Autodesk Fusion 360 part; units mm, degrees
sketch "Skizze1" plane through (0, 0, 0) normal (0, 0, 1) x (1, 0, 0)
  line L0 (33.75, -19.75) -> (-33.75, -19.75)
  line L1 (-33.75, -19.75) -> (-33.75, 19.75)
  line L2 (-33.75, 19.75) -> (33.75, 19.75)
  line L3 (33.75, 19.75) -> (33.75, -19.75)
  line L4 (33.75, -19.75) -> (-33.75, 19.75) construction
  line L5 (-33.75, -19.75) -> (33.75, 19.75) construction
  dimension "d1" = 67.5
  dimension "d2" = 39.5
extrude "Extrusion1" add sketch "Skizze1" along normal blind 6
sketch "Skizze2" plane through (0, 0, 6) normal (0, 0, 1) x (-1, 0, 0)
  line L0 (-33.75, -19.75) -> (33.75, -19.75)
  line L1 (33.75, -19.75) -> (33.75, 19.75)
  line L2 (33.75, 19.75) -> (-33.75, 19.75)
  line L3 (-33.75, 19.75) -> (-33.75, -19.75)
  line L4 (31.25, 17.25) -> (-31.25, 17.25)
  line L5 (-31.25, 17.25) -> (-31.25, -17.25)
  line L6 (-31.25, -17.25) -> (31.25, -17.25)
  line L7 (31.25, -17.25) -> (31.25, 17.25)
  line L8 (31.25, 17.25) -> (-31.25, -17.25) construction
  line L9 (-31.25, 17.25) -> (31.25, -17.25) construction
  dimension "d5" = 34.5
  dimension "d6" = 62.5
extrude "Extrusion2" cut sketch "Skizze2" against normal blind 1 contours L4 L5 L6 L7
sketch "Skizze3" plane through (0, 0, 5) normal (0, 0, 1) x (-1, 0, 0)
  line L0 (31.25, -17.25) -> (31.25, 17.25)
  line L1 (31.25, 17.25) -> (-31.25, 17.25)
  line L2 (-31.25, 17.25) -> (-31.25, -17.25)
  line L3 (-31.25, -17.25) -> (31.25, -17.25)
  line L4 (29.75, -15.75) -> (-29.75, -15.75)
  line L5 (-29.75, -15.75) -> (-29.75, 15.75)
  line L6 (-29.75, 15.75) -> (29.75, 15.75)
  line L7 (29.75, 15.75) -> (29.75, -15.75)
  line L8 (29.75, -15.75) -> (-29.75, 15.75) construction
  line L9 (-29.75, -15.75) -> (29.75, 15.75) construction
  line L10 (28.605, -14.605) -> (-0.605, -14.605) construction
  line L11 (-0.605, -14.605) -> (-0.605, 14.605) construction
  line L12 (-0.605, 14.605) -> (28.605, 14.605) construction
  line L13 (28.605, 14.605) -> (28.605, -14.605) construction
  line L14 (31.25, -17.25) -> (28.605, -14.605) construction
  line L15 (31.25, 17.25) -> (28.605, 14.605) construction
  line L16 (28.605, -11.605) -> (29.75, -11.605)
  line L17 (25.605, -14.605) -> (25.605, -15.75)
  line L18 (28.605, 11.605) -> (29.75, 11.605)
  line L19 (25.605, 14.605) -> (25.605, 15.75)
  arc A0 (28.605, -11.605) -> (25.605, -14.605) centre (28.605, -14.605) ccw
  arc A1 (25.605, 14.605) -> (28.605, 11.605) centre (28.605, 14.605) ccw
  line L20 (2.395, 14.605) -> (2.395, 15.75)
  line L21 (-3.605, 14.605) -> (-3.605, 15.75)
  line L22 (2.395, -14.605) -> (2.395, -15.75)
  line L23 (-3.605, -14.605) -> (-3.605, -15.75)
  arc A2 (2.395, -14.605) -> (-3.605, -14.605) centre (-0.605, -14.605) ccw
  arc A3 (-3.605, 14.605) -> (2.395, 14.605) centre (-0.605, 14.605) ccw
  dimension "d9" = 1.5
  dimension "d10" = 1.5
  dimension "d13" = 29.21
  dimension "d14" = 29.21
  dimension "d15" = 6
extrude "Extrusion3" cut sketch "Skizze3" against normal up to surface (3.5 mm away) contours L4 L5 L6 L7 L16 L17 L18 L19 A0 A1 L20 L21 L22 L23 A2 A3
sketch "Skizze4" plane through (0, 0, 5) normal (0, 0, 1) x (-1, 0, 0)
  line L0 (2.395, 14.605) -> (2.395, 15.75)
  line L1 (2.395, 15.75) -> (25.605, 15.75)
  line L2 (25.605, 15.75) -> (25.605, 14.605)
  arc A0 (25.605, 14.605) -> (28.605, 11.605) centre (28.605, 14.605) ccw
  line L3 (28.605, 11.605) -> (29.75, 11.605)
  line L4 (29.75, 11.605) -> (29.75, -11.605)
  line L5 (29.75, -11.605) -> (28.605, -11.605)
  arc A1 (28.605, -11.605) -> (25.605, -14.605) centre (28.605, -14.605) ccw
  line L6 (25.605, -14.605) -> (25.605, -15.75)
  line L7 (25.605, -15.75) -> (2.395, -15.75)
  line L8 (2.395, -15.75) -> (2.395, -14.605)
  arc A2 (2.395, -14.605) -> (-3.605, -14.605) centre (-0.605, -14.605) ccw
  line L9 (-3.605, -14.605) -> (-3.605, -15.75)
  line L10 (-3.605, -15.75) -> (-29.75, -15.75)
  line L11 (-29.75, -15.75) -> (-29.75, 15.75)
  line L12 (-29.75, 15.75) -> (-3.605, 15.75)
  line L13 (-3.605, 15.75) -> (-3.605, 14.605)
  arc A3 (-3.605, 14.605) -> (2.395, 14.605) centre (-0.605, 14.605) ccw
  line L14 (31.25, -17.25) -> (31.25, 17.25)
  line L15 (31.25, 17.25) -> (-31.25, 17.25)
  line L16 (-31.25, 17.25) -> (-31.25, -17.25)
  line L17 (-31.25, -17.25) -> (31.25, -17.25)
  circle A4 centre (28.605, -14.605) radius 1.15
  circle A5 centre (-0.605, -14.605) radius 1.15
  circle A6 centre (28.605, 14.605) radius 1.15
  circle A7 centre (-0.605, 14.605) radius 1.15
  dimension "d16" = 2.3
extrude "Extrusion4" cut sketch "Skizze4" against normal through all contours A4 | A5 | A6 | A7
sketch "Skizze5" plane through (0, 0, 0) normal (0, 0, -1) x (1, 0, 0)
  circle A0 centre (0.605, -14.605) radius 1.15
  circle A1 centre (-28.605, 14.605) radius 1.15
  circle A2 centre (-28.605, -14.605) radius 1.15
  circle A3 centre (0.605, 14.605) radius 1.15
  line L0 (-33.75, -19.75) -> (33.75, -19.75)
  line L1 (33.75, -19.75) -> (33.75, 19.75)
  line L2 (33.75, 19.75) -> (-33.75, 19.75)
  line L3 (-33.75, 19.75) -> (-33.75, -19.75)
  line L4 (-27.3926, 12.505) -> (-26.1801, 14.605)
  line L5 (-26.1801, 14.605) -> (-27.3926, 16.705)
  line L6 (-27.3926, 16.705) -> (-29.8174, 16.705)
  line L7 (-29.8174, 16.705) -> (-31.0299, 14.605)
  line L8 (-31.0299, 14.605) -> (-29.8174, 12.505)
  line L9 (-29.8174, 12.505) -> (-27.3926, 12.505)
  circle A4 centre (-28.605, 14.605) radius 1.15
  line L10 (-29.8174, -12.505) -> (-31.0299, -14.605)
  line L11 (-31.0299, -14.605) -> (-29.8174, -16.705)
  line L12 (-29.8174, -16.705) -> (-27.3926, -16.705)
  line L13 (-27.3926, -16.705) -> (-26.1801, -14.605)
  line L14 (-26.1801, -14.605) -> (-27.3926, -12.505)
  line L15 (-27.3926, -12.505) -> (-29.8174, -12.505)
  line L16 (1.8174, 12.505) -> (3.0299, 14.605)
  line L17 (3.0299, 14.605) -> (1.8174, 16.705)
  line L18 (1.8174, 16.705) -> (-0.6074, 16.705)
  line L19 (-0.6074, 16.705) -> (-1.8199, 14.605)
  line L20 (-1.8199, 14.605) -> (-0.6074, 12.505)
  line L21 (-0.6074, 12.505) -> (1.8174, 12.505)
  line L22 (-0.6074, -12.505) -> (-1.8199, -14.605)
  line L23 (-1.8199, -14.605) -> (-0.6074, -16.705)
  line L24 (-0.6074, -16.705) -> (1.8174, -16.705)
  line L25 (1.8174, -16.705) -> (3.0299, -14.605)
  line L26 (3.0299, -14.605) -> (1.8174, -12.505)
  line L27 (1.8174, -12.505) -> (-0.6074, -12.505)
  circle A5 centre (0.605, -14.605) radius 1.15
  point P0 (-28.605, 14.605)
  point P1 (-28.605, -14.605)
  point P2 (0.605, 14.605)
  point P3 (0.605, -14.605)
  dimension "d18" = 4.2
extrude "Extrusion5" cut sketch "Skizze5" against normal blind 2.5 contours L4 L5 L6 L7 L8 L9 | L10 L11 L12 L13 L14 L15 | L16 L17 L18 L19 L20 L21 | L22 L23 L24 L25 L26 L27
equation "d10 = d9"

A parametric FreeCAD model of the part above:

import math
import FreeCAD as App
import Part
import Sketcher
Q = App.Units.Quantity


def add_polygon(sketch, points):
    """Adds a closed chain of lines whose ends are joined by coincident constraints."""
    first, n = sketch.GeometryCount, len(points)
    for a, b in zip(points, points[1:] + points[:1]):
        sketch.addGeometry(Part.LineSegment(App.Vector(*a, 0), App.Vector(*b, 0)), False)
    for i in range(n):
        sketch.addConstraint(Sketcher.Constraint("Coincident", first + i, 2, first + (i + 1) % n, 1))

doc = App.newDocument("Part")
body = doc.addObject("PartDesign::Body", "Body")

sketch1 = body.newObject("Sketcher::SketchObject", "Sketch")
sketch1.AttachmentSupport = (doc.getObject("XY_Plane"), [""])
sketch1.MapMode = "FlatFace"
add_polygon(sketch1, [(-33.75, -19.75), (33.75, -19.75), (33.75, 19.75), (-33.75, 19.75)])
sketch1.addConstraint([
    Sketcher.Constraint("Horizontal", 0),
    Sketcher.Constraint("Vertical", 1),
    Sketcher.Constraint("Horizontal", 2),
    Sketcher.Constraint("Vertical", 3),
    Sketcher.Constraint("Symmetric", 0, 2, 2, 2, -1, 1),
    Sketcher.Constraint("DistanceX", 0, 1, 0, 2, Q("67.5 mm")),
    Sketcher.Constraint("DistanceY", 1, 1, 1, 2, Q("39.5 mm")),
])
pad1 = body.newObject("PartDesign::Pad", "Pad")
pad1.Profile = sketch1
pad1.Length = 6

sketch2 = body.newObject("Sketcher::SketchObject", "Sketch001")
sketch2.AttachmentSupport = (doc.getObject("XY_Plane"), [""])
sketch2.MapMode = "FlatFace"
sketch2.AttachmentOffset = App.Placement(App.Vector(0, 0, 6), App.Rotation())
add_polygon(sketch2, [(-31.25, 17.25), (-31.25, -17.25), (31.25, -17.25), (31.25, 17.25)])
sketch2.addConstraint([
    Sketcher.Constraint("Vertical", 0),
    Sketcher.Constraint("Horizontal", 1),
    Sketcher.Constraint("Vertical", 2),
    Sketcher.Constraint("Horizontal", 3),
    Sketcher.Constraint("Symmetric", 0, 2, 2, 2, -1, 1),
    Sketcher.Constraint("DistanceX", 1, 1, 1, 2, Q("62.5 mm")),
    Sketcher.Constraint("DistanceY", 0, 2, 0, 1, Q("34.5 mm")),
])
pocket1 = body.newObject("PartDesign::Pocket", "Pocket")
pocket1.Profile = sketch2
pocket1.Length = 1

sketch3 = body.newObject("Sketcher::SketchObject", "Sketch002")
sketch3.AttachmentSupport = (doc.getObject("XY_Plane"), [""])
sketch3.MapMode = "FlatFace"
sketch3.AttachmentOffset = App.Placement(App.Vector(0, 0, 5), App.Rotation())
sketch3.addGeometry([
    Part.LineSegment(App.Vector(-2.395, 15.75, 0), App.Vector(-25.605, 15.75, 0)),
    Part.LineSegment(App.Vector(-25.605, 15.75, 0), App.Vector(-25.605, 14.605, 0)),
    Part.ArcOfCircle(Part.Circle(App.Vector(-28.605, 14.605, 0), App.Vector(0, 0, 1), 3), math.radians(-90), math.radians(0)),
    Part.LineSegment(App.Vector(-28.605, 11.605, 0), App.Vector(-29.75, 11.605, 0)),
    Part.LineSegment(App.Vector(-29.75, 11.605, 0), App.Vector(-29.75, -11.605, 0)),
    Part.LineSegment(App.Vector(-29.75, -11.605, 0), App.Vector(-28.605, -11.605, 0)),
    Part.ArcOfCircle(Part.Circle(App.Vector(-28.605, -14.605, 0), App.Vector(0, 0, 1), 3), math.radians(0), math.radians(90)),
    Part.LineSegment(App.Vector(-25.605, -14.605, 0), App.Vector(-25.605, -15.75, 0)),
    Part.LineSegment(App.Vector(-25.605, -15.75, 0), App.Vector(-2.395, -15.75, 0)),
    Part.LineSegment(App.Vector(-2.395, -15.75, 0), App.Vector(-2.395, -14.605, 0)),
    Part.ArcOfCircle(Part.Circle(App.Vector(0.605, -14.605, 0), App.Vector(0, 0, 1), 3), math.radians(0), math.radians(180)),
    Part.LineSegment(App.Vector(3.605, -14.605, 0), App.Vector(3.605, -15.75, 0)),
    Part.LineSegment(App.Vector(3.605, -15.75, 0), App.Vector(29.75, -15.75, 0)),
    Part.LineSegment(App.Vector(29.75, -15.75, 0), App.Vector(29.75, 15.75, 0)),
    Part.LineSegment(App.Vector(29.75, 15.75, 0), App.Vector(3.605, 15.75, 0)),
    Part.LineSegment(App.Vector(3.605, 15.75, 0), App.Vector(3.605, 14.605, 0)),
    Part.ArcOfCircle(Part.Circle(App.Vector(0.605, 14.605, 0), App.Vector(0, 0, 1), 3), math.radians(180), math.radians(360)),
    Part.LineSegment(App.Vector(-2.395, 14.605, 0), App.Vector(-2.395, 15.75, 0)),
], False)
sketch3.addConstraint([
    Sketcher.Constraint("Coincident", 0, 2, 1, 1),
    Sketcher.Constraint("Tangent", 1, 2, 2, 2),
    Sketcher.Constraint("Tangent", 2, 1, 3, 1),
    Sketcher.Constraint("Coincident", 3, 2, 4, 1),
    Sketcher.Constraint("Coincident", 4, 2, 5, 1),
    Sketcher.Constraint("Tangent", 5, 2, 6, 2),
    Sketcher.Constraint("Tangent", 6, 1, 7, 1),
    Sketcher.Constraint("Coincident", 7, 2, 8, 1),
    Sketcher.Constraint("Coincident", 8, 2, 9, 1),
    Sketcher.Constraint("Tangent", 9, 2, 10, 2),
    Sketcher.Constraint("Tangent", 10, 1, 11, 1),
    Sketcher.Constraint("Coincident", 11, 2, 12, 1),
    Sketcher.Constraint("Coincident", 12, 2, 13, 1),
    Sketcher.Constraint("Coincident", 13, 2, 14, 1),
    Sketcher.Constraint("Coincident", 14, 2, 15, 1),
    Sketcher.Constraint("Tangent", 15, 2, 16, 2),
    Sketcher.Constraint("Tangent", 16, 1, 17, 1),
    Sketcher.Constraint("Coincident", 17, 2, 0, 1),
    Sketcher.Constraint("Horizontal", 0),
    Sketcher.Constraint("Vertical", 1),
    Sketcher.Constraint("Horizontal", 3),
    Sketcher.Constraint("Vertical", 4),
    Sketcher.Constraint("Horizontal", 5),
    Sketcher.Constraint("Vertical", 7),
    Sketcher.Constraint("Horizontal", 8),
    Sketcher.Constraint("Vertical", 9),
    Sketcher.Constraint("Vertical", 11),
    Sketcher.Constraint("Horizontal", 12),
    Sketcher.Constraint("Vertical", 13),
    Sketcher.Constraint("Horizontal", 14),
    Sketcher.Constraint("Vertical", 15),
    Sketcher.Constraint("Vertical", 17),
    Sketcher.Constraint("Equal", 2, 6),
    Sketcher.Constraint("Equal", 6, 10),
    Sketcher.Constraint("Equal", 10, 16),
    Sketcher.Constraint("Symmetric", 2, 3, 6, 3, -1),
    Sketcher.Constraint("Symmetric", 10, 3, 16, 3, -1),
    Sketcher.Constraint("Horizontal", 6, 3, 10, 3),
    Sketcher.Constraint("Horizontal", 8, 2, 11, 2),
    Sketcher.Constraint("Horizontal", 0, 2, 13, 2),
    Sketcher.Constraint("Equal", 5, 1),
    Sketcher.Constraint("Equal", 8, 4),
    Sketcher.Constraint("Equal", 1, 7),
    Sketcher.Constraint("Radius", 2, Q("3 mm")),
    Sketcher.Constraint("DistanceY", 6, 3, 2, 3, Q("29.21 mm")),
    Sketcher.Constraint("DistanceY", 13, 1, 13, 2, Q("31.5 mm")),
    Sketcher.Constraint("DistanceX", 12, 1, 12, 2, Q("26.145 mm")),
    Sketcher.Constraint("DistanceX", 3, 2, -1, 1, Q("29.75 mm")),
])
pocket2 = body.newObject("PartDesign::Pocket", "Pocket001")
pocket2.Profile = sketch3
pocket2.Length = 3.5

sketch4 = body.newObject("Sketcher::SketchObject", "Sketch003")
sketch4.AttachmentSupport = (doc.getObject("XY_Plane"), [""])
sketch4.MapMode = "FlatFace"
sketch4.AttachmentOffset = App.Placement(App.Vector(0, 0, 5), App.Rotation())
sketch4.addGeometry([
    Part.Circle(App.Vector(-28.605, 14.605, 0), App.Vector(0, 0, 1), 1.15),
    Part.Circle(App.Vector(0.605, 14.605, 0), App.Vector(0, 0, 1), 1.15),
    Part.Circle(App.Vector(-28.605, -14.605, 0), App.Vector(0, 0, 1), 1.15),
    Part.Circle(App.Vector(0.605, -14.605, 0), App.Vector(0, 0, 1), 1.15),
], False)
sketch4.addConstraint([
    Sketcher.Constraint("Equal", 0, 1),
    Sketcher.Constraint("Equal", 1, 2),
    Sketcher.Constraint("Equal", 2, 3),
    Sketcher.Constraint("Symmetric", 0, 3, 2, 3, -1),
    Sketcher.Constraint("Symmetric", 1, 3, 3, 3, -1),
    Sketcher.Constraint("Horizontal", 0, 3, 1, 3),
    Sketcher.Constraint("Diameter", 0, Q("2.3 mm")),
    Sketcher.Constraint("DistanceX", 0, 3, 1, 3, Q("29.21 mm")),
    Sketcher.Constraint("DistanceY", 2, 3, 0, 3, Q("29.21 mm")),
    Sketcher.Constraint("DistanceX", 0, 3, -1, 1, Q("28.605 mm")),
])
pocket3 = body.newObject("PartDesign::Pocket", "Pocket002")
pocket3.Profile = sketch4
pocket3.Type = "ThroughAll"

sketch5 = body.newObject("Sketcher::SketchObject", "Sketch004")
sketch5.AttachmentSupport = (doc.getObject("XY_Plane"), [""])
sketch5.MapMode = "FlatFace"
add_polygon(sketch5, [(-29.8174, -12.505), (-27.3926, -12.505), (-26.1801, -14.605), (-27.3926, -16.705), (-29.8174, -16.705), (-31.0299, -14.605)])
sketch5.addGeometry(Part.Circle(App.Vector(-28.605, -14.605, 0), App.Vector(0, 0, 1), 1.15), False)
add_polygon(sketch5, [(-27.3926, 12.505), (-29.8174, 12.505), (-31.0299, 14.605), (-29.8174, 16.705), (-27.3926, 16.705), (-26.1801, 14.605)])
sketch5.addGeometry(Part.Circle(App.Vector(-28.605, 14.605, 0), App.Vector(0, 0, 1), 1.15), False)
add_polygon(sketch5, [(-0.6074, -12.505), (1.8174, -12.505), (3.0299, -14.605), (1.8174, -16.705), (-0.6074, -16.705), (-1.8199, -14.605)])
sketch5.addGeometry(Part.Circle(App.Vector(0.605, -14.605, 0), App.Vector(0, 0, 1), 1.15), False)
add_polygon(sketch5, [(1.8174, 12.505), (-0.6074, 12.505), (-1.8199, 14.605), (-0.6074, 16.705), (1.8174, 16.705), (3.0299, 14.605)])
sketch5.addGeometry(Part.Circle(App.Vector(0.605, 14.605, 0), App.Vector(0, 0, 1), 1.15), False)
sketch5.addConstraint([
    Sketcher.Constraint("Horizontal", 0),
    Sketcher.Constraint("Horizontal", 3),
    Sketcher.Constraint("Horizontal", 7),
    Sketcher.Constraint("Horizontal", 10),
    Sketcher.Constraint("Horizontal", 14),
    Sketcher.Constraint("Horizontal", 17),
    Sketcher.Constraint("Horizontal", 21),
    Sketcher.Constraint("Horizontal", 24),
    Sketcher.Constraint("Equal", 6, 13),
    Sketcher.Constraint("Equal", 13, 20),
    Sketcher.Constraint("Equal", 20, 27),
    Sketcher.Constraint("Symmetric", 6, 3, 13, 3, -1),
    Sketcher.Constraint("Symmetric", 20, 3, 27, 3, -1),
    Sketcher.Constraint("Symmetric", 5, 2, 7, 2, -1),
    Sketcher.Constraint("Symmetric", 4, 2, 8, 2, -1),
    Sketcher.Constraint("Symmetric", 3, 2, 9, 2, -1),
    Sketcher.Constraint("Symmetric", 1, 2, 11, 2, -1),
    Sketcher.Constraint("Symmetric", 19, 2, 21, 2, -1),
    Sketcher.Constraint("Symmetric", 18, 2, 22, 2, -1),
    Sketcher.Constraint("Symmetric", 17, 2, 23, 2, -1),
    Sketcher.Constraint("Symmetric", 15, 2, 25, 2, -1),
    Sketcher.Constraint("Parallel", 1, 4),
    Sketcher.Constraint("Parallel", 2, 5),
    Sketcher.Constraint("Parallel", 4, 8),
    Sketcher.Constraint("Parallel", 8, 11),
    Sketcher.Constraint("Parallel", 9, 12),
    Sketcher.Constraint("Parallel", 11, 15),
    Sketcher.Constraint("Parallel", 12, 16),
    Sketcher.Constraint("Parallel", 15, 18),
    Sketcher.Constraint("Parallel", 16, 19),
    Sketcher.Constraint("Parallel", 22, 25),
    Sketcher.Constraint("Parallel", 23, 26),
    Sketcher.Constraint("Horizontal", 6, 3, 20, 3),
    Sketcher.Constraint("Horizontal", 20, 3, 1, 2),
    Sketcher.Constraint("Horizontal", 1, 2, 4, 2),
    Sketcher.Constraint("Horizontal", 5, 2, 14, 2),
    Sketcher.Constraint("Horizontal", 4, 2, 15, 2),
    Sketcher.Constraint("Horizontal", 3, 2, 16, 2),
    Sketcher.Constraint("Horizontal", 15, 2, 18, 2),
    Sketcher.Constraint("Vertical", 0, 2, 2, 2),
    Sketcher.Constraint("Equal", 10, 14),
    Sketcher.Constraint("Diameter", 6, Q("2.3 mm")),
    Sketcher.Constraint("DistanceY", 2, 2, 0, 2, Q("4.2 mm")),
    Sketcher.Constraint("DistanceX", 1, 2, -1, 1, Q("26.18 mm")),
    Sketcher.Constraint("DistanceX", 4, 2, -1, 1, Q("31.03 mm")),
    Sketcher.Constraint("DistanceX", -1, 1, 15, 2, Q("3.03 mm")),
    Sketcher.Constraint("DistanceY", 6, 3, 13, 3, Q("29.21 mm")),
    Sketcher.Constraint("DistanceX", 6, 3, 20, 3, Q("29.21 mm")),
    Sketcher.Constraint("Distance", 1, Q("2.425 mm")),
    Sketcher.Constraint("DistanceX", 6, 3, -1, 1, Q("28.605 mm")),
])
pocket4 = body.newObject("PartDesign::Pocket", "Pocket003")
pocket4.Profile = sketch5
pocket4.Length = 2.5
pocket4.Reversed = True

doc.recompute()
